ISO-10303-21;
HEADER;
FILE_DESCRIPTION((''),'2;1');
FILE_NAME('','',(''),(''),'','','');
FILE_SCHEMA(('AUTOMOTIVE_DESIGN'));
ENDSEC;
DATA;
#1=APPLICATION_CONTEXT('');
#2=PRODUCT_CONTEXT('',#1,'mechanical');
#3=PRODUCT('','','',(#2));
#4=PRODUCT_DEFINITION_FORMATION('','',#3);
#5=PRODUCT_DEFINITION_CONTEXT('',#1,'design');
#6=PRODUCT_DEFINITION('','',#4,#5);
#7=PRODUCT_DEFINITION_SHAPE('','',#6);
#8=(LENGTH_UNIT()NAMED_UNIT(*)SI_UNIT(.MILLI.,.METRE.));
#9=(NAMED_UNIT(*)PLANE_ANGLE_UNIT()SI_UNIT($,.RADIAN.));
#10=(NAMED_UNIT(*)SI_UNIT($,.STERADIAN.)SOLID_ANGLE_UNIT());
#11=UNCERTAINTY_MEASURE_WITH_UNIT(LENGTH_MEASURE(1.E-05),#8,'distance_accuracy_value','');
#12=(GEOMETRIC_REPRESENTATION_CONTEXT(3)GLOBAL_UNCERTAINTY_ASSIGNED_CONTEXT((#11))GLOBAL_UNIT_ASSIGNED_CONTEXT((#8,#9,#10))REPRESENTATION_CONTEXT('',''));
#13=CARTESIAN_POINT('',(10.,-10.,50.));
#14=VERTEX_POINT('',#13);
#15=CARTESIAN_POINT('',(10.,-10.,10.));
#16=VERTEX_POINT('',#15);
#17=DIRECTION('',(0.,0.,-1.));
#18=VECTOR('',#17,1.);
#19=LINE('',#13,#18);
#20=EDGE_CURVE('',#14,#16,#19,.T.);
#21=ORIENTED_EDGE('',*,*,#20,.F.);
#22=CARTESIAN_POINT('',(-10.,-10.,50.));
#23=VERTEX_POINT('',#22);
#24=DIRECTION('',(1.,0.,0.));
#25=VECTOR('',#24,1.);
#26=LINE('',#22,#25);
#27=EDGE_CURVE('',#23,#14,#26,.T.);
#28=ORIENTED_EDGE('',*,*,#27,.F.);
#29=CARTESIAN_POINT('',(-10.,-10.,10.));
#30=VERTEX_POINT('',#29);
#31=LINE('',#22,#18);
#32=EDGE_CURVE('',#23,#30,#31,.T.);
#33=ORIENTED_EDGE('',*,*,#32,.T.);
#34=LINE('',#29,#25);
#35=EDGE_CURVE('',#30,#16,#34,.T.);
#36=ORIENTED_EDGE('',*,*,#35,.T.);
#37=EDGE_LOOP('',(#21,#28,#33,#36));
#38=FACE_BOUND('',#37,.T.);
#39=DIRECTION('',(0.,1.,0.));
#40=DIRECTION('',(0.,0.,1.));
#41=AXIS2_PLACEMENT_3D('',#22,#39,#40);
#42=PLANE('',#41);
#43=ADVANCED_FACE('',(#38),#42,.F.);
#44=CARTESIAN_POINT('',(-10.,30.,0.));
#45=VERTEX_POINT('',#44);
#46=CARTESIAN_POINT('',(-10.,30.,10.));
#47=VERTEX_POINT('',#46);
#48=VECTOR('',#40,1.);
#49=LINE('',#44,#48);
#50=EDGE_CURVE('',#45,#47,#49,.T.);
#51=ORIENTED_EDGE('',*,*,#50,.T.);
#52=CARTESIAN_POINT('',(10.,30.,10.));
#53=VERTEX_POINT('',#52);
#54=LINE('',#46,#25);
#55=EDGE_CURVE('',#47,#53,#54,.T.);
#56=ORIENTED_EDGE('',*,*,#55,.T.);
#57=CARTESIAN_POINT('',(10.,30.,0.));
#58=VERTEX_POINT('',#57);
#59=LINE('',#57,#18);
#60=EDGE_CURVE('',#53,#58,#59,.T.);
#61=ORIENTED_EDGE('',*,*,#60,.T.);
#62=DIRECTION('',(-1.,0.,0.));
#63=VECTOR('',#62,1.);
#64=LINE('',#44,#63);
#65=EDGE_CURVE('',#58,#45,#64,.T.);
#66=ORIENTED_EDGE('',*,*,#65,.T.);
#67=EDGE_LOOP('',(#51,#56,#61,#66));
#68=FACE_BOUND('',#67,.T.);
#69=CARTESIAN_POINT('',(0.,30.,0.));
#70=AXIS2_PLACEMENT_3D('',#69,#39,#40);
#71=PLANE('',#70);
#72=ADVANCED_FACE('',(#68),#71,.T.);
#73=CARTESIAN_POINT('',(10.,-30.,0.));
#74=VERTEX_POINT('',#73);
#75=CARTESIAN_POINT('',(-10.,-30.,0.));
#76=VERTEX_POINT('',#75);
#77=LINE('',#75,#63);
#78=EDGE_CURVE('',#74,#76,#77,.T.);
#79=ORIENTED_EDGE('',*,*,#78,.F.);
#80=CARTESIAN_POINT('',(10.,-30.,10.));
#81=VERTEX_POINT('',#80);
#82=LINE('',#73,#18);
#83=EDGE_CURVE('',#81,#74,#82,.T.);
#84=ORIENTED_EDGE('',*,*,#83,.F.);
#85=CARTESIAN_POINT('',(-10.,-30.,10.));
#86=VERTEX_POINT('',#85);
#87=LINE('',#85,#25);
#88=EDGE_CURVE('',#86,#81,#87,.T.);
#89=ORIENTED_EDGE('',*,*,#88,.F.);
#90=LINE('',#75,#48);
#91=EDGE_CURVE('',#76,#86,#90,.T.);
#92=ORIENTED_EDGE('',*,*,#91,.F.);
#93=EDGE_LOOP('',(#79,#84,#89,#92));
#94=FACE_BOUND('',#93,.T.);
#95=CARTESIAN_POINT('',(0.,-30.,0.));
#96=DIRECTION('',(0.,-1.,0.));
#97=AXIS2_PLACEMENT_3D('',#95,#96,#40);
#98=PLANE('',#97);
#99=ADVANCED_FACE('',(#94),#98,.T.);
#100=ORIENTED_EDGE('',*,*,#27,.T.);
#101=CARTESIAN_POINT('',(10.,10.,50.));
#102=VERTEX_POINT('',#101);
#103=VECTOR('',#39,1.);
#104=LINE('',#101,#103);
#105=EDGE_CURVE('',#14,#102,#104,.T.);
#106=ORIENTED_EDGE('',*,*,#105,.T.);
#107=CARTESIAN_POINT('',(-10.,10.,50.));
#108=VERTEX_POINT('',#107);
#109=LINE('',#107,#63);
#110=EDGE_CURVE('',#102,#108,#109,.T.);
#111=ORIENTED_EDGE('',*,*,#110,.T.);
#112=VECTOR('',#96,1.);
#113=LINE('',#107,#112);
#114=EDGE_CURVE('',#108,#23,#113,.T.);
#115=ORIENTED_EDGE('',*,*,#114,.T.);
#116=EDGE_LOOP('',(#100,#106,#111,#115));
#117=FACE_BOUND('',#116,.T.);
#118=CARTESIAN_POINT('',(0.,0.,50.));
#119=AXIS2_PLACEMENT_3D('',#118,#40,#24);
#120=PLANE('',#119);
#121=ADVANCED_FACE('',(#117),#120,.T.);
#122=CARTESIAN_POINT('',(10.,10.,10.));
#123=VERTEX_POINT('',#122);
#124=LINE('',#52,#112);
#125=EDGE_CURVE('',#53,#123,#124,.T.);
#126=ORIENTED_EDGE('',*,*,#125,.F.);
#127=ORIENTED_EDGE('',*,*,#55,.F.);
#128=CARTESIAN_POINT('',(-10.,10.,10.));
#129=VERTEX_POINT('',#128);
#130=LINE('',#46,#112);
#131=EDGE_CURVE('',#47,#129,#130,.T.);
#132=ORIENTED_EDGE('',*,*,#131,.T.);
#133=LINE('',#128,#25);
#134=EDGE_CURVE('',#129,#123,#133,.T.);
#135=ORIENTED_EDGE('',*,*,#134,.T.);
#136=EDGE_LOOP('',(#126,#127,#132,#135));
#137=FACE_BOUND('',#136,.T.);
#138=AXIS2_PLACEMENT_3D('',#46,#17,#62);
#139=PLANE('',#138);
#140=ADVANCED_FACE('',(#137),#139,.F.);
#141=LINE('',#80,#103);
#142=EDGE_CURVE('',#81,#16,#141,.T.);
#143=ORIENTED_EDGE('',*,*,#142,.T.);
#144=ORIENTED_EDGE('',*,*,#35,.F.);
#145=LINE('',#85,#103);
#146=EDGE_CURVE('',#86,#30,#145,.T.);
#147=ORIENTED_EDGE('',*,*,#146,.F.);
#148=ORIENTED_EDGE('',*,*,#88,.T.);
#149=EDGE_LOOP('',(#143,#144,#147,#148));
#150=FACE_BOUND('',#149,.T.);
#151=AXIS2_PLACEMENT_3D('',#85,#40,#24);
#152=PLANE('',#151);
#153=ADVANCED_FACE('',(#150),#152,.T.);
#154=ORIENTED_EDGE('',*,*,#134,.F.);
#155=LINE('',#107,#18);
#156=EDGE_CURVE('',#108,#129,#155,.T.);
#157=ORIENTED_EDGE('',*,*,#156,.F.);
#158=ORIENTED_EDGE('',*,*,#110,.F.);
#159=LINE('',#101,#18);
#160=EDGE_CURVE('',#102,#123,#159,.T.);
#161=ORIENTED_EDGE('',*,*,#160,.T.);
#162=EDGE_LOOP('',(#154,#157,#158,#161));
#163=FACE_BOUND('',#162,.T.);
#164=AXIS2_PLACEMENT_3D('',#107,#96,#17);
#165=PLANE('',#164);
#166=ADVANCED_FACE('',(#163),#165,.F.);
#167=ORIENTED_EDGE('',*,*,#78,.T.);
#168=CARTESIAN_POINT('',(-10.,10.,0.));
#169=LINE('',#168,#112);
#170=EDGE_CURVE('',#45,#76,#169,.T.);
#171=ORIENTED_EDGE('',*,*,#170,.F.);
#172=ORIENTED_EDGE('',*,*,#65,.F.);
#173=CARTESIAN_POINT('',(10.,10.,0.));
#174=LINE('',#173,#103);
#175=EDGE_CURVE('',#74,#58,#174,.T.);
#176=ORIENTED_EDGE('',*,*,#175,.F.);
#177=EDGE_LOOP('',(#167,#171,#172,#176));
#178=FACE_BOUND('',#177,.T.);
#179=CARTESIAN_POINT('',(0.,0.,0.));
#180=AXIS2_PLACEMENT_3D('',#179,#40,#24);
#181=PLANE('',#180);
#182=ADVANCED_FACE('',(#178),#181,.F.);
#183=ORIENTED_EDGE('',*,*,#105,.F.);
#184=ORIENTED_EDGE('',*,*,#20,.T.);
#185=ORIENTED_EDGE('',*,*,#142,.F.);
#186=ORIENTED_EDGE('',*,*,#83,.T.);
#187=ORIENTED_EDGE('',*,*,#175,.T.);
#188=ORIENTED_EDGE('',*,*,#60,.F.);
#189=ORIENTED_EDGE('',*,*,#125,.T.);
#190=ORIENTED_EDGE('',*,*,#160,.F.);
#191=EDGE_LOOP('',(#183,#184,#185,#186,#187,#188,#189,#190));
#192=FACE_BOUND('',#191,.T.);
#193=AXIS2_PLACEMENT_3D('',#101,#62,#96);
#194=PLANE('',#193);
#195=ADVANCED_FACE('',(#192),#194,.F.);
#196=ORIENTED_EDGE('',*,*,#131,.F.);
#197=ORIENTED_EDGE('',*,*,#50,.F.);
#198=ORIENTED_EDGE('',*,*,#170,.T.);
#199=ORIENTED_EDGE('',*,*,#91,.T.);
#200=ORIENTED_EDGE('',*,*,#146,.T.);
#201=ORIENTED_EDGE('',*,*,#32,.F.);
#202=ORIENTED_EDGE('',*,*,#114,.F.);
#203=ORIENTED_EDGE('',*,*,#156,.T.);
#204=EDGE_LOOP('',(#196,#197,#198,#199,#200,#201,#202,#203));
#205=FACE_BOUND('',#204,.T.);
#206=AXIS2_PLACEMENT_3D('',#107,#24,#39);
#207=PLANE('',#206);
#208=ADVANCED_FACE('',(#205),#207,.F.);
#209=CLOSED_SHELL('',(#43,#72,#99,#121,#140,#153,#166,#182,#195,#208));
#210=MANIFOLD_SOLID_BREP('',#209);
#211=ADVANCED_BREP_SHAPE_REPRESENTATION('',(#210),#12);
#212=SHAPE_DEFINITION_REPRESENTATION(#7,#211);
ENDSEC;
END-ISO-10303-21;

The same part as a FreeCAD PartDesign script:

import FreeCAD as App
import Part
import Sketcher
from FreeCAD import Vector


def add_polygon(sketch, points):
    """Adds a closed chain of lines whose ends are joined by coincident constraints."""
    first, n = sketch.GeometryCount, len(points)
    for a, b in zip(points, points[1:] + points[:1]):
        sketch.addGeometry(Part.LineSegment(App.Vector(*a, 0), App.Vector(*b, 0)), False)
    for i in range(n):
        sketch.addConstraint(Sketcher.Constraint("Coincident", first + i, 2, first + (i + 1) % n, 1))

doc = App.newDocument("Part")
body = doc.addObject("PartDesign::Body", "Body")

# Sketch on XY plane
sketch1 = body.newObject("Sketcher::SketchObject", "Sketch")
sketch1.AttachmentSupport = (doc.getObject("XY_Plane"), [""])
sketch1.MapMode = "FlatFace"
add_polygon(sketch1, [(-10, 10), (-10, -10), (10, -10), (10, 10)])  # lines 0-3
sketch1.addConstraint([
    Sketcher.Constraint("Vertical", 0),
    Sketcher.Constraint("Horizontal", 1),
    Sketcher.Constraint("Vertical", 2),
    Sketcher.Constraint("Horizontal", 3),
    Sketcher.Constraint("Symmetric", 0, 2, 2, 2, -1, 1),
    Sketcher.Constraint("Equal", 3, 0),
    Sketcher.Constraint("DistanceX", 1, 1, 1, 2, 20.0),
])
pad1 = body.newObject("PartDesign::Pad", "Pad")
pad1.Profile = sketch1
pad1.Length = 50

# Sketch on XZ plane
sketch2 = body.newObject("Sketcher::SketchObject", "Sketch001")
sketch2.AttachmentSupport = (doc.getObject("XZ_Plane"), [""])
sketch2.MapMode = "FlatFace"
sketch2.AttachmentOffset = App.Placement(Vector(0, 0, -10), App.Rotation())
add_polygon(sketch2, [(-10, 0), (-10, 10), (10, 10), (10, 0)])  # lines 0-3
sketch2.addConstraint([
    Sketcher.Constraint("Vertical", 0),
    Sketcher.Constraint("Horizontal", 1),
    Sketcher.Constraint("Vertical", 2),
    Sketcher.Constraint("Horizontal", 3),
    Sketcher.Constraint("Symmetric", 2, 2, 3, 2, -1, 1),
    Sketcher.Constraint("DistanceX", 1, 1, 1, 2, 20.0),
    Sketcher.Constraint("DistanceY", 0, 1, 0, 2, 10.0),
])
pad2 = body.newObject("PartDesign::Pad", "Pad001")
pad2.Profile = sketch2
pad2.Length = 20
pad2.Reversed = True
doc.recompute()

mirrored = body.newObject("PartDesign::Mirrored", "Mirrored")
mirrored.Originals = [pad2]
mirrored.MirrorPlane = (doc.getObject("XZ_Plane"), [""])
body.Tip = mirrored

doc.recompute()
